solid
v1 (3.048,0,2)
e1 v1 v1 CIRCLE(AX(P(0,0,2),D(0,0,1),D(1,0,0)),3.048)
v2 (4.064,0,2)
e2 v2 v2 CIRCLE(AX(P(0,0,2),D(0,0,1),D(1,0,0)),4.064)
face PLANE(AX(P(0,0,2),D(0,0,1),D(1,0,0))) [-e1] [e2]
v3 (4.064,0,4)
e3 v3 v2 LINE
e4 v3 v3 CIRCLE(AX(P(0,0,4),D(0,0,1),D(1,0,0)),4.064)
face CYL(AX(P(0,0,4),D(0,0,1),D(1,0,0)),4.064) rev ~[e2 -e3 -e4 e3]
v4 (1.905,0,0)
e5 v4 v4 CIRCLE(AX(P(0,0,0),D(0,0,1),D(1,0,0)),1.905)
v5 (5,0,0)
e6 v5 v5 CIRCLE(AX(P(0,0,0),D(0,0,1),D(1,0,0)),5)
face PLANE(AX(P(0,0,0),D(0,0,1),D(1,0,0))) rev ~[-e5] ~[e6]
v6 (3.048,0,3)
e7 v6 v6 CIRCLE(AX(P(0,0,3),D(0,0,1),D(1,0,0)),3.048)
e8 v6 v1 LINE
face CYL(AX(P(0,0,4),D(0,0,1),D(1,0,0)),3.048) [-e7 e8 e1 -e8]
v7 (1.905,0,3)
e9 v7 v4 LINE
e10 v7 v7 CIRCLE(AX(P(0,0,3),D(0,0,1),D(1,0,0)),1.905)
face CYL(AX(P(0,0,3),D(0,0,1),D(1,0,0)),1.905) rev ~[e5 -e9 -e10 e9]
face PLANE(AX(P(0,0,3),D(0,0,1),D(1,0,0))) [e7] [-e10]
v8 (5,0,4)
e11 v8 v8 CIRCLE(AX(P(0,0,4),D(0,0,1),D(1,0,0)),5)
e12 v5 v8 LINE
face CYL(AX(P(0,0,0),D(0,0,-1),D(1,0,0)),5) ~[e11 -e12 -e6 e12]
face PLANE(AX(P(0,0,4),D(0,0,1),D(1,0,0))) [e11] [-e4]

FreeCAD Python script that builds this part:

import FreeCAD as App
import Part
import Sketcher
from FreeCAD import Vector
Q = App.Units.Quantity

doc = App.newDocument("Part")
body = doc.addObject("PartDesign::Body", "Body")

sketch1 = body.newObject("Sketcher::SketchObject", "Sketch")
sketch1.AttachmentSupport = (doc.getObject("XY_Plane"), [""])
sketch1.MapMode = "FlatFace"
sketch1.addGeometry(Part.Circle(Vector(0, 0, 0), Vector(0, 0, 1), 5), False)
sketch1.addConstraint([
    Sketcher.Constraint("Coincident", 0, 3, -1, 1),
    Sketcher.Constraint("Diameter", 0, Q("10 mm")),
])
pad1 = body.newObject("PartDesign::Pad", "Pad")
pad1.Profile = sketch1
pad1.Length = 4

sketch2 = body.newObject("Sketcher::SketchObject", "Sketch001")
sketch2.AttachmentSupport = (doc.getObject("XY_Plane"), [""])
sketch2.MapMode = "FlatFace"
sketch2.AttachmentOffset = App.Placement(Vector(0, 0, 4), App.Rotation())
sketch2.addGeometry([
    Part.Circle(Vector(0, 0, 0), Vector(0, 0, 1), 4.1),
    Part.Circle(Vector(0, 0, 0), Vector(0, 0, 1), 3),
], False)
sketch2.addConstraint([
    Sketcher.Constraint("Coincident", 0, 3, -1, 1),
    Sketcher.Constraint("Coincident", 1, 3, -1, 1),
    Sketcher.Constraint("Diameter", 0, Q("8.128 mm")),
    Sketcher.Constraint("Diameter", 1, Q("6.096 mm")),
])
pocket1 = body.newObject("PartDesign::Pocket", "Pocket")
pocket1.Profile = sketch2
pocket1.Length = 2

sketch3 = body.newObject("Sketcher::SketchObject", "Sketch002")
sketch3.AttachmentSupport = (doc.getObject("XY_Plane"), [""])
sketch3.MapMode = "FlatFace"
sketch3.AttachmentOffset = App.Placement(Vector(0, 0, 4), App.Rotation())
sketch3.addGeometry(Part.Circle(Vector(0, 0, 0), Vector(0, 0, 1), 3), False)
sketch3.addConstraint([
    Sketcher.Constraint("Coincident", 0, 3, -1, 1),
    Sketcher.Constraint("Diameter", 0, Q("6.096 mm")),
])
pocket2 = body.newObject("PartDesign::Pocket", "Pocket001")
pocket2.Profile = sketch3
pocket2.Length = 1

sketch4 = body.newObject("Sketcher::SketchObject", "Sketch003")
sketch4.AttachmentSupport = (doc.getObject("XY_Plane"), [""])
sketch4.MapMode = "FlatFace"
sketch4.AttachmentOffset = App.Placement(Vector(0, 0, 3), App.Rotation())
sketch4.addGeometry(Part.Circle(Vector(0, 0, 0), Vector(0, 0, 1), 1.9), False)
sketch4.addConstraint([
    Sketcher.Constraint("Coincident", 0, 3, -1, 1),
    Sketcher.Constraint("Diameter", 0, Q("3.81 mm")),
])
pocket3 = body.newObject("PartDesign::Pocket", "Pocket002")
pocket3.Profile = sketch4
pocket3.Length = 25.4

doc.recompute()
